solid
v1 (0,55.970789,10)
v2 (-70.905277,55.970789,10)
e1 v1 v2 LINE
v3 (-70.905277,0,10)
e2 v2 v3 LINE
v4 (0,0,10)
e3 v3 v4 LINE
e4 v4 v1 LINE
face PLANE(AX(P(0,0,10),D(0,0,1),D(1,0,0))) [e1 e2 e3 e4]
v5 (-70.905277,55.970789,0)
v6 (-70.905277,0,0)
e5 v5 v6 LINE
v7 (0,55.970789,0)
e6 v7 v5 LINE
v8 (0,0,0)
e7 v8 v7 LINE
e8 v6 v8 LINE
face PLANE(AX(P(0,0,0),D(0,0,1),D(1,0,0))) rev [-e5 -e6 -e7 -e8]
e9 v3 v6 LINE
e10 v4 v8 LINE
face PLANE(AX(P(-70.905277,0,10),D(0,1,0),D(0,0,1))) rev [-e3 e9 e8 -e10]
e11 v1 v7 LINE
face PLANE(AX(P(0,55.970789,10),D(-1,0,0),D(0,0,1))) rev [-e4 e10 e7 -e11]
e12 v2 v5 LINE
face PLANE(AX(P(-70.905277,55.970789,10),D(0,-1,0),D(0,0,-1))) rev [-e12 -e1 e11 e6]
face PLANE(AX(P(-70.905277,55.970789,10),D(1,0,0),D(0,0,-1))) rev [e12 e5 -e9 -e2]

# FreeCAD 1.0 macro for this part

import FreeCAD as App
import Part
import Sketcher
from FreeCAD import Vector
Q = App.Units.Quantity

doc = App.newDocument("Part")
params = doc.addObject("Spreadsheet::Sheet", "Params")
for row, (alias, value) in enumerate([
    ("pad1_length", "10 mm"),
], start=1):
    params.set(f"A{row}", alias)
    params.set(f"B{row}", "=" + value)
    params.setAlias(f"B{row}", alias)

body = doc.addObject("PartDesign::Body", "Body")

# Sketch on XY plane
sketch1 = body.newObject("Sketcher::SketchObject", "Sketch")
sketch1.AttachmentSupport = (doc.getObject("XY_Plane"), [""])
sketch1.MapMode = "FlatFace"
sketch1.addGeometry(Part.LineSegment(Vector(-71, 56, 0), Vector(-71, 0, 0)), False)
sketch1.addGeometry(Part.LineSegment(Vector(-71, 0, 0), Vector(0, 0, 0)), False)
sketch1.addGeometry(Part.LineSegment(Vector(0, 0, 0), Vector(0, 56, 0)), False)
sketch1.addGeometry(Part.LineSegment(Vector(0, 56, 0), Vector(-71, 56, 0)), False)
sketch1.addConstraint(Sketcher.Constraint("Coincident", 0, 2, 1, 1))
sketch1.addConstraint(Sketcher.Constraint("Coincident", 1, 2, 2, 1))
sketch1.addConstraint(Sketcher.Constraint("Coincident", 2, 2, 3, 1))
sketch1.addConstraint(Sketcher.Constraint("Coincident", 3, 2, 0, 1))
sketch1.addConstraint(Sketcher.Constraint("Vertical", 0))
sketch1.addConstraint(Sketcher.Constraint("Horizontal", 1))
sketch1.addConstraint(Sketcher.Constraint("Vertical", 2))
sketch1.addConstraint(Sketcher.Constraint("Horizontal", 3))
sketch1.addConstraint(Sketcher.Constraint("Coincident", 1, 2, -1, 1))
sketch1.addConstraint(Sketcher.Constraint("DistanceY", 0, 2, 0, 1, Q("55.970789 mm")))
sketch1.addConstraint(Sketcher.Constraint("DistanceX", 1, 1, 1, 2, Q("70.905277 mm")))
pad1 = body.newObject("PartDesign::Pad", "Pad")
pad1.Profile = sketch1
pad1.setExpression("Length", "Params.pad1_length")

doc.recompute()
